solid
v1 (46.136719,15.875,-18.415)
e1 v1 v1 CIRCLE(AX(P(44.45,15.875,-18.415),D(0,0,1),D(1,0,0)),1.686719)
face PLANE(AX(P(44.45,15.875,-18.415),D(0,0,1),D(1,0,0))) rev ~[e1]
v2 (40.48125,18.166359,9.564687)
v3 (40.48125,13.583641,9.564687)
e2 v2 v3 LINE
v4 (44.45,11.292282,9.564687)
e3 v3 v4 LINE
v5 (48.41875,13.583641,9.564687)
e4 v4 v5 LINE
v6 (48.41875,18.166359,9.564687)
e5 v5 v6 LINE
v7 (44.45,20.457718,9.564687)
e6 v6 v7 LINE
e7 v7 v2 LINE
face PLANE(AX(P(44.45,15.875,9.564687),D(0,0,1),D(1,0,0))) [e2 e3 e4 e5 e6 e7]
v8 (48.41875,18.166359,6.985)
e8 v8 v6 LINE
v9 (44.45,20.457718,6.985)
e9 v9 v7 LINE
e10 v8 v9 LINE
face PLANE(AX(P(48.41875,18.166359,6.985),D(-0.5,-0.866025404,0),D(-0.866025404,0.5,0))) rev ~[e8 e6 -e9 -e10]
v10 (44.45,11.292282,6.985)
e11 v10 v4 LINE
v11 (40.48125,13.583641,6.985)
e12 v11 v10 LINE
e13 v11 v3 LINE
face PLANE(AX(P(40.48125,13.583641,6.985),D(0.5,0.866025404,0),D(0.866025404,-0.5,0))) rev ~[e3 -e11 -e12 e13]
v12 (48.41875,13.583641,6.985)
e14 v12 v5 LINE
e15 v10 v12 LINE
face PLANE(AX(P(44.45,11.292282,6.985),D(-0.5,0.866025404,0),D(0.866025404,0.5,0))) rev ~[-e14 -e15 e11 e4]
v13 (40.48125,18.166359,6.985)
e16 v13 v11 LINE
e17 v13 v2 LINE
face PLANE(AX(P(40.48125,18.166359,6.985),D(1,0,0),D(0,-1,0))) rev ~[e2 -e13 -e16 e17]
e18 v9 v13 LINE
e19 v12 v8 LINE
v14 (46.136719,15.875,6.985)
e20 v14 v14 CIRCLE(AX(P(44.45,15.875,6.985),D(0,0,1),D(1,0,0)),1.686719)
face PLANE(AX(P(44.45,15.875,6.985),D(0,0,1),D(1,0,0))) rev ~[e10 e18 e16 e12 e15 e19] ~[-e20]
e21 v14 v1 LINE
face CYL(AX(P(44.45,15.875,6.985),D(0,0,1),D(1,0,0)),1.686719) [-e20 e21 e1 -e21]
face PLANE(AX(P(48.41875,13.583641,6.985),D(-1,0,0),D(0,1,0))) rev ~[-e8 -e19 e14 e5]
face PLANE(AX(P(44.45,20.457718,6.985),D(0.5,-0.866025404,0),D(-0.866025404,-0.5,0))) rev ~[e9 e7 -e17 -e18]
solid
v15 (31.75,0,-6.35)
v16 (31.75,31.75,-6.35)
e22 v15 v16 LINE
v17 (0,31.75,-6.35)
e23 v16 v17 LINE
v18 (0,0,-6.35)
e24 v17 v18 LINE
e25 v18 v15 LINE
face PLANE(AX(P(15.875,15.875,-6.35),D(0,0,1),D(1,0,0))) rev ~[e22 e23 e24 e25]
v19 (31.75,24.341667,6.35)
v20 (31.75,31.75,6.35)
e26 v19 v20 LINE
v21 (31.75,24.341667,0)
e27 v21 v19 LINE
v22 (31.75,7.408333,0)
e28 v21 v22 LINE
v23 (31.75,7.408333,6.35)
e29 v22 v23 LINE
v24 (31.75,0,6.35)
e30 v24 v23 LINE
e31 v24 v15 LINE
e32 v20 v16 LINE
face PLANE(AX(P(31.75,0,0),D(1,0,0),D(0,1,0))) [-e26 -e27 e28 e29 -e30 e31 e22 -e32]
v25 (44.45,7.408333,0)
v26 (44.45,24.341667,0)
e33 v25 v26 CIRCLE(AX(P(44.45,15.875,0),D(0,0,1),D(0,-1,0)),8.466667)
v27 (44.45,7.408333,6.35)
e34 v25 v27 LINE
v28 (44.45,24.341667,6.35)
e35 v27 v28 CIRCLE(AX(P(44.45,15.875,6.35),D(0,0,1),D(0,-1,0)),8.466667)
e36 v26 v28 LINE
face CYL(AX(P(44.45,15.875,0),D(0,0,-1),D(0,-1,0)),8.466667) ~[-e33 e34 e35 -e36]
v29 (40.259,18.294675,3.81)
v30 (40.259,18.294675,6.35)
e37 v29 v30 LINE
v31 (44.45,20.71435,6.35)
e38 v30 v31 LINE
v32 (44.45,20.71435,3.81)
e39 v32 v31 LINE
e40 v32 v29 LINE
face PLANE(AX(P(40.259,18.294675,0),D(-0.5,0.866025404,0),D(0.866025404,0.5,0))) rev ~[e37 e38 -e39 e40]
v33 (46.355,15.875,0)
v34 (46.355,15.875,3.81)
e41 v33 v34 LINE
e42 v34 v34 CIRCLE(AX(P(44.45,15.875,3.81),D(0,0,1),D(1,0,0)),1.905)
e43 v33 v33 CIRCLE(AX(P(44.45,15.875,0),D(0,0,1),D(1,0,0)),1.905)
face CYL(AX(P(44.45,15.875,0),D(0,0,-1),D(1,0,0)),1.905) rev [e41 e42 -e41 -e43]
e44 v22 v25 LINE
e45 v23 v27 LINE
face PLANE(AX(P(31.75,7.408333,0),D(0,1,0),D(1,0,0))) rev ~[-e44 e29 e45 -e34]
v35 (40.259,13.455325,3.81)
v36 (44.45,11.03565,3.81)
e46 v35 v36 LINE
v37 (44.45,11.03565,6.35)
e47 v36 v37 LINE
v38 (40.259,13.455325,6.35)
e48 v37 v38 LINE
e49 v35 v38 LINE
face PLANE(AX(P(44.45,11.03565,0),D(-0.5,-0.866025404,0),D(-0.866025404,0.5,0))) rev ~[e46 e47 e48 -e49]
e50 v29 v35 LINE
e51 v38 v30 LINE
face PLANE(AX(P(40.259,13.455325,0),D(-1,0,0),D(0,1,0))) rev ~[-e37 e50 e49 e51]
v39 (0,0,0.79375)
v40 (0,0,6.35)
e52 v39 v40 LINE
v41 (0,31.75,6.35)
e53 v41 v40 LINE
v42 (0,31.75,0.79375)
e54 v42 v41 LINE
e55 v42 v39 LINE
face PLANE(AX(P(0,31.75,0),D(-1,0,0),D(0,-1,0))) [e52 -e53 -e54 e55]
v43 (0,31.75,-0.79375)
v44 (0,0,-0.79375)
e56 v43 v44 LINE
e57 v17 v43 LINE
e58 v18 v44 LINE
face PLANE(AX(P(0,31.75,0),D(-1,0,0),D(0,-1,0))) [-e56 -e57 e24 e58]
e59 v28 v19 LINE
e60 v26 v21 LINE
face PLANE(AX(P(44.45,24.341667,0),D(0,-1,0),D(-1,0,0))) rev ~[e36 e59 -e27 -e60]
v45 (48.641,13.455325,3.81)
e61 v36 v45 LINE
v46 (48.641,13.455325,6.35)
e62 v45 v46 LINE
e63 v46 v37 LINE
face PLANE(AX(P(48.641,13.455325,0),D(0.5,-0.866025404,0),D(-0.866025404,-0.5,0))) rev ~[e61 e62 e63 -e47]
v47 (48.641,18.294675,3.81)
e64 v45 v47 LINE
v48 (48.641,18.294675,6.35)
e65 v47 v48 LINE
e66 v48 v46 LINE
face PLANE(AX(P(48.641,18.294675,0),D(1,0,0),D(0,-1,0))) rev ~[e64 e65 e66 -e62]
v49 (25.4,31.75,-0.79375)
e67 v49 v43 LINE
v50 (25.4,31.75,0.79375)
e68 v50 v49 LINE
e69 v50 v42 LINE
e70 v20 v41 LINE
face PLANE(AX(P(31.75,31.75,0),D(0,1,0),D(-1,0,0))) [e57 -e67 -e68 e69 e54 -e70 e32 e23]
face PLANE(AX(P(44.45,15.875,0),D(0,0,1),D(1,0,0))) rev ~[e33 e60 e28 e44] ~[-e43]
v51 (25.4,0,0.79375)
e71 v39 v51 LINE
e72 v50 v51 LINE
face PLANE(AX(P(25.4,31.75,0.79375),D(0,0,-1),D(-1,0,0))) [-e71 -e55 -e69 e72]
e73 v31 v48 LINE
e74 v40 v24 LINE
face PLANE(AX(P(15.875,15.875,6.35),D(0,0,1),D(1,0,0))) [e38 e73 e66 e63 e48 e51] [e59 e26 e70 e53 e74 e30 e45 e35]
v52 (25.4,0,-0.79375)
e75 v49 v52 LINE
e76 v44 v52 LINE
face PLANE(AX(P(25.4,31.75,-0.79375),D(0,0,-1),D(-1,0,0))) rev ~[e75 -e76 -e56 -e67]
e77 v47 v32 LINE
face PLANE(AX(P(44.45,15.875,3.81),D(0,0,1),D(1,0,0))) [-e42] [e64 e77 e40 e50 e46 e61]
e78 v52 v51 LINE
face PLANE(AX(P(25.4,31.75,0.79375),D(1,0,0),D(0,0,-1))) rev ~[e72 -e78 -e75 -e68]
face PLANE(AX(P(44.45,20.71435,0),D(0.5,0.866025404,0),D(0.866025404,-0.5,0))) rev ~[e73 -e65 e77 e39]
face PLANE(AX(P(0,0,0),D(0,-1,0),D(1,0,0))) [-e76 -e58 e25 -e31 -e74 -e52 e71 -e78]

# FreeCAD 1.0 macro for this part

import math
import FreeCAD as App
import Part
import Sketcher
Q = App.Units.Quantity


def add_polygon(sketch, points):
    """Adds a closed chain of lines whose ends are joined by coincident constraints."""
    first, n = sketch.GeometryCount, len(points)
    for a, b in zip(points, points[1:] + points[:1]):
        sketch.addGeometry(Part.LineSegment(App.Vector(*a, 0), App.Vector(*b, 0)), False)
    for i in range(n):
        sketch.addConstraint(Sketcher.Constraint("Coincident", first + i, 2, first + (i + 1) % n, 1))

doc = App.newDocument("Part")
body = doc.addObject("PartDesign::Body", "Body")

# Sketch on XY plane
sketch1 = body.newObject("Sketcher::SketchObject", "Sketch")
sketch1.AttachmentSupport = (doc.getObject("XY_Plane"), [""])
sketch1.MapMode = "FlatFace"
add_polygon(sketch1, [(32, 32), (0, 32), (0, 0), (32, 0)])  # lines 0-3
sketch1.addConstraint([
    Sketcher.Constraint("Horizontal", 0),
    Sketcher.Constraint("Vertical", 1),
    Sketcher.Constraint("Horizontal", 2),
    Sketcher.Constraint("Vertical", 3),
    Sketcher.Constraint("Coincident", 1, 2, -1, 1),
    Sketcher.Constraint("Equal", 2, 1),
    Sketcher.Constraint("DistanceX", 0, 2, 0, 1, Q("1.25 in")),
])
pad1 = body.newObject("PartDesign::Pad", "Pad")
pad1.Profile = sketch1
pad1.Length = Q("0.5 in")
pad1.Midplane = True

# Sketch on XY plane
sketch2 = body.newObject("Sketcher::SketchObject", "Sketch001")
sketch2.AttachmentSupport = (doc.getObject("XY_Plane"), [""])
sketch2.MapMode = "FlatFace"
sketch2.addGeometry(Part.LineSegment(App.Vector(44.5, 24.3, 0), App.Vector(31.8, 24.3, 0)), False)  # 0
sketch2.addGeometry(Part.LineSegment(App.Vector(31.8, 24.3, 0), App.Vector(31.8, 7.4, 0)), False)  # 1
sketch2.addGeometry(Part.LineSegment(App.Vector(31.8, 7.4, 0), App.Vector(44.5, 7.4, 0)), False)  # 2
sketch2.addGeometry(Part.ArcOfCircle(Part.Circle(App.Vector(44.5, 15.9, 0), App.Vector(0, 0, 1), 8.5), math.radians(-90), math.radians(90)), False)  # 3
add_polygon(sketch2, [(40.3, 18.3), (44.5, 20.7), (48.6, 18.3), (48.6, 13.5), (44.5, 11), (40.3, 13.5)])  # lines 4-9
sketch2.addConstraint([
    Sketcher.Constraint("Coincident", 0, 2, 1, 1),
    Sketcher.Constraint("Coincident", 1, 2, 2, 1),
    Sketcher.Constraint("Tangent", 2, 2, 3, 1),
    Sketcher.Constraint("Tangent", 3, 2, 0, 1),
    Sketcher.Constraint("Horizontal", 0),
    Sketcher.Constraint("Vertical", 1),
    Sketcher.Constraint("Horizontal", 2),
    Sketcher.Constraint("Vertical", 6),
    Sketcher.Constraint("Vertical", 9),
    Sketcher.Constraint("Parallel", 4, 7),
    Sketcher.Constraint("Parallel", 5, 8),
    Sketcher.Constraint("Horizontal", 6, 2, 8, 2),
    Sketcher.Constraint("Horizontal", 5, 2, 9, 2),
    Sketcher.Constraint("Vertical", 3, 2, 4, 2),
    Sketcher.Constraint("Vertical", 4, 2, 7, 2),
    Sketcher.Constraint("DistanceX", 0, 2, 0, 1, Q("0.5 in")),
    Sketcher.Constraint("Angle", 4, Q("30 deg")),
    Sketcher.Constraint("DistanceX", -1, 1, 3, 3, Q("1.75 in")),
    Sketcher.Constraint("DistanceX", 8, 2, 6, 2, Q("0.33 in")),
    Sketcher.Constraint("DistanceY", -1, 1, 3, 3, Q("0.625 in")),
    Sketcher.Constraint("Radius", 3, 8.466667),
    Sketcher.Constraint("DistanceY", 6, 2, 6, 1, 4.83935),
    Sketcher.Constraint("DistanceY", -1, 1, 4, 2, 20.71435),
])
pad2 = body.newObject("PartDesign::Pad", "Pad001")
pad2.Profile = sketch2
pad2.Length = Q("0.25 in")

# Sketch on XY plane
sketch3 = body.newObject("Sketcher::SketchObject", "Sketch002")
sketch3.AttachmentSupport = (doc.getObject("XY_Plane"), [""])
sketch3.MapMode = "FlatFace"
add_polygon(sketch3, [(48.6, 13.5), (48.6, 18.3), (44.5, 20.7), (40.3, 18.3), (40.3, 13.5), (44.5, 11)])  # lines 0-5
sketch3.addGeometry(Part.Circle(App.Vector(44.5, 15.9, 0), App.Vector(0, 0, 1), 1.9), False)  # 6
sketch3.addConstraint([
    Sketcher.Constraint("Vertical", 0),
    Sketcher.Constraint("Vertical", 3),
    Sketcher.Constraint("Parallel", 1, 4),
    Sketcher.Constraint("Parallel", 2, 5),
    Sketcher.Constraint("Horizontal", 0, 2, 2, 2),
    Sketcher.Constraint("Horizontal", 3, 2, 5, 2),
    Sketcher.Constraint("Vertical", 6, 3, 1, 2),
    Sketcher.Constraint("Vertical", 1, 2, 4, 2),
    Sketcher.Constraint("Diameter", 6, Q("0.15 in")),
    Sketcher.Constraint("Angle", 1, Q("150 deg")),
    Sketcher.Constraint("DistanceX", -1, 1, 6, 3, Q("1.75 in")),
    Sketcher.Constraint("DistanceX", 2, 2, 0, 2, Q("0.33 in")),
    Sketcher.Constraint("DistanceY", -1, 1, 6, 3, Q("0.625 in")),
    Sketcher.Constraint("DistanceY", 0, 1, 0, 2, 4.83935),
    Sketcher.Constraint("DistanceY", -1, 1, 1, 2, 20.71435),
])
pad3 = body.newObject("PartDesign::Pad", "Pad002")
pad3.Profile = sketch3
pad3.Length = Q("0.15 in")

# Sketch on XZ plane
sketch4 = body.newObject("Sketcher::SketchObject", "Sketch003")
sketch4.AttachmentSupport = (doc.getObject("XZ_Plane"), [""])
sketch4.MapMode = "FlatFace"
sketch4.AttachmentOffset = App.Placement(App.Vector(0, 0, -1.25 * 25.4), App.Rotation())
add_polygon(sketch4, [(25.4, 0.8), (25.4, -0.8), (0, -0.8), (0, 0.8)])  # lines 0-3
sketch4.addConstraint([
    Sketcher.Constraint("Vertical", 0),
    Sketcher.Constraint("Horizontal", 1),
    Sketcher.Constraint("Vertical", 2),
    Sketcher.Constraint("Horizontal", 3),
    Sketcher.Constraint("Symmetric", 1, 2, 2, 2, -1, 1),
    Sketcher.Constraint("DistanceX", 1, 2, 1, 1, Q("1 in")),
    Sketcher.Constraint("DistanceY", 0, 2, 0, 1, Q("0.0625 in")),
])
pocket1 = body.newObject("PartDesign::Pocket", "Pocket")
pocket1.Profile = sketch4
pocket1.Type = "ThroughAll"
pocket1.Reversed = True
body2 = doc.addObject("PartDesign::Body", "Body001")

# Sketch on XY plane
sketch5 = body2.newObject("Sketcher::SketchObject", "Sketch004")
sketch5.AttachmentSupport = (doc.getObject("XY_Plane001"), [""])
sketch5.MapMode = "FlatFace"
sketch5.AttachmentOffset = App.Placement(App.Vector(0, 0, 0.275 * 25.4), App.Rotation())
sketch5.addGeometry(Part.Circle(App.Vector(44.5, 15.9, 0), App.Vector(0, 0, 1), 1.7), False)
sketch5.addConstraint([
    Sketcher.Constraint("DistanceX", -1, 1, 0, 3, Q("1.75 in")),
    Sketcher.Constraint("DistanceY", -1, 1, 0, 3, Q("0.625 in")),
    Sketcher.Constraint("Diameter", 0, 3.373438),
])
pad4 = body2.newObject("PartDesign::Pad", "Pad003")
pad4.Profile = sketch5
pad4.Length = Q("1 in")
pad4.Reversed = True

# Sketch on XY plane
sketch6 = body2.newObject("Sketcher::SketchObject", "Sketch005")
sketch6.AttachmentSupport = (doc.getObject("XY_Plane001"), [""])
sketch6.MapMode = "FlatFace"
sketch6.AttachmentOffset = App.Placement(App.Vector(0, 0, 0.275 * 25.4), App.Rotation())
add_polygon(sketch6, [(48.4, 13.6), (48.4, 18.2), (44.5, 20.5), (40.5, 18.2), (40.5, 13.6), (44.5, 11.3)])  # lines 0-5
sketch6.addConstraint([
    Sketcher.Constraint("Vertical", 0),
    Sketcher.Constraint("Vertical", 3),
    Sketcher.Constraint("Parallel", 1, 4),
    Sketcher.Constraint("Parallel", 2, 5),
    Sketcher.Constraint("Horizontal", 0, 2, 2, 2),
    Sketcher.Constraint("Horizontal", 3, 2, 5, 2),
    Sketcher.Constraint("Vertical", 1, 2, 4, 2),
    Sketcher.Constraint("Angle", 1, Q("150 deg")),
    Sketcher.Constraint("DistanceX", -1, 1, 1, 2, Q("1.75 in")),
    Sketcher.Constraint("DistanceX", -1, 1, 0, 2, Q("1.90625 in")),
    Sketcher.Constraint("DistanceY", 0, 1, 0, 2, 4.582718),
    Sketcher.Constraint("DistanceY", -1, 1, 0, 2, 18.166359),
])
pad5 = body2.newObject("PartDesign::Pad", "Pad004")
pad5.Profile = sketch6
pad5.Length = 2.579687

doc.recompute()
